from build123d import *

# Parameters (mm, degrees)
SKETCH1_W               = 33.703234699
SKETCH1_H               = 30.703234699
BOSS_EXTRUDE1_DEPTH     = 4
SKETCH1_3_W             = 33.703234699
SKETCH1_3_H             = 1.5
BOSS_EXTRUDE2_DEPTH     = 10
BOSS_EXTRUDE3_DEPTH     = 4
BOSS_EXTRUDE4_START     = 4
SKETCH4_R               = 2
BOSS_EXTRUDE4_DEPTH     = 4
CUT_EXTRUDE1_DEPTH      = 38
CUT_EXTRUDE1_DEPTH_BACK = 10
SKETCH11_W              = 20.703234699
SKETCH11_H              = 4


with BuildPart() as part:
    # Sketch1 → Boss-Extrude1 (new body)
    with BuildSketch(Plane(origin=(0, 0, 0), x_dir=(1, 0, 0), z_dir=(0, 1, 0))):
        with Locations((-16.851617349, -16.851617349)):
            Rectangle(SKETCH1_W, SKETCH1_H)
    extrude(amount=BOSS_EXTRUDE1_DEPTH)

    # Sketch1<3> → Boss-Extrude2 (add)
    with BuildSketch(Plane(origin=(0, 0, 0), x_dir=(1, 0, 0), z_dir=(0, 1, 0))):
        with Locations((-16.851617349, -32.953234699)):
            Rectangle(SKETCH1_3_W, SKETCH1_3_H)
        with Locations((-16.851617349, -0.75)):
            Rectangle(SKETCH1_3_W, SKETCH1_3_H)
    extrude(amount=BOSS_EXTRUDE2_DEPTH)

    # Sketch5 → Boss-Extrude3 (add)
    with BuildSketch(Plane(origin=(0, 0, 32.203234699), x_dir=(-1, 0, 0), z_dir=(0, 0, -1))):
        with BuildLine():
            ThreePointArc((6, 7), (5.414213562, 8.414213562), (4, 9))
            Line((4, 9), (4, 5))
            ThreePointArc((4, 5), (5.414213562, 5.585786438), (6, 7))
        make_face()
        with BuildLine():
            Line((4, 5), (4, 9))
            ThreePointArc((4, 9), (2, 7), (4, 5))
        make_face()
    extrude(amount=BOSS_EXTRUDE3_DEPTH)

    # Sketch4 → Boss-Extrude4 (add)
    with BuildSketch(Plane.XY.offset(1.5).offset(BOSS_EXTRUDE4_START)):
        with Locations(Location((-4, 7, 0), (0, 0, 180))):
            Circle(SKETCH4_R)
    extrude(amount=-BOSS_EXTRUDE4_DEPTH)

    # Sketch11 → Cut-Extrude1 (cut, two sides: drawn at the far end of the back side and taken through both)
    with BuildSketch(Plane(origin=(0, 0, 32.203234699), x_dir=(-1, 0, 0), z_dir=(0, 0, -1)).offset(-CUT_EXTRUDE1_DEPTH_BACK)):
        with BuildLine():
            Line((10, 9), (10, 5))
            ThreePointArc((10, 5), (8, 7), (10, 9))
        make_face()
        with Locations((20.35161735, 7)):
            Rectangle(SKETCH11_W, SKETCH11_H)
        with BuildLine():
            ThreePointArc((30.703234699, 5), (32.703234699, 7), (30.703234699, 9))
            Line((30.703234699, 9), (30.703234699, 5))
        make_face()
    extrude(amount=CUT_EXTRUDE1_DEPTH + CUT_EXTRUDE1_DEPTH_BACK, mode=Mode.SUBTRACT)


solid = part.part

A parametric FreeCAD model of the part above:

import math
import FreeCAD as App
import Part
import Sketcher

V = App.Vector

doc = App.newDocument("Part")
body = doc.addObject("PartDesign::Body", "Body")

# Sketch on XZ plane
sketch1 = doc.addObject("Sketcher::SketchObject", "Sketch")
body.addObject(sketch1)
sketch1.AttachmentSupport = (doc.XZ_Plane, [""])
sketch1.MapMode = "FlatFace"
sketch1.addGeometry(Part.LineSegment(V(-34, 2, 0), V(-34, 32, 0)), False)
sketch1.addGeometry(Part.LineSegment(V(-34, 32, 0), V(0, 32, 0)), False)
sketch1.addGeometry(Part.LineSegment(V(0, 32, 0), V(0, 2, 0)), False)
sketch1.addGeometry(Part.LineSegment(V(0, 2, 0), V(-34, 2, 0)), False)
sketch1.addConstraint(Sketcher.Constraint("Coincident", 0, 2, 1, 1))
sketch1.addConstraint(Sketcher.Constraint("Coincident", 1, 2, 2, 1))
sketch1.addConstraint(Sketcher.Constraint("Coincident", 2, 2, 3, 1))
sketch1.addConstraint(Sketcher.Constraint("Coincident", 3, 2, 0, 1))
sketch1.addConstraint(Sketcher.Constraint("Vertical", 0))
sketch1.addConstraint(Sketcher.Constraint("Horizontal", 1))
sketch1.addConstraint(Sketcher.Constraint("Vertical", 2))
sketch1.addConstraint(Sketcher.Constraint("Horizontal", 3))
sketch1.addConstraint(Sketcher.Constraint("PointOnObject", 1, 2, -2))
sketch1.addConstraint(Sketcher.Constraint("DistanceY", -1, 1, 2, 2, 1.5))
sketch1.addConstraint(Sketcher.Constraint("DistanceX", 1, 1, 1, 2, 33.703235))
sketch1.addConstraint(Sketcher.Constraint("DistanceY", 0, 1, 0, 2, 30.703235))
pad1 = doc.addObject("PartDesign::Pad", "Pad")
body.addObject(pad1)
pad1.Profile = sketch1
pad1.Length = 4
pad1.Reversed = True

# Sketch on XZ plane
sketch2 = doc.addObject("Sketcher::SketchObject", "Sketch001")
body.addObject(sketch2)
sketch2.AttachmentSupport = (doc.XZ_Plane, [""])
sketch2.MapMode = "FlatFace"
sketch2.addGeometry(Part.LineSegment(V(-33.7, 32.2, 0), V(-33.7, 33.7, 0)), False)
sketch2.addGeometry(Part.LineSegment(V(-33.7, 33.7, 0), V(0, 33.7, 0)), False)
sketch2.addGeometry(Part.LineSegment(V(0, 33.7, 0), V(0, 32.2, 0)), False)
sketch2.addGeometry(Part.LineSegment(V(0, 32.2, 0), V(-33.7, 32.2, 0)), False)
sketch2.addGeometry(Part.LineSegment(V(-33.7, 0, 0), V(-33.7, 1.5, 0)), False)
sketch2.addGeometry(Part.LineSegment(V(-33.7, 1.5, 0), V(0, 1.5, 0)), False)
sketch2.addGeometry(Part.LineSegment(V(0, 1.5, 0), V(0, 0, 0)), False)
sketch2.addGeometry(Part.LineSegment(V(0, 0, 0), V(-33.7, 0, 0)), False)
sketch2.addConstraint(Sketcher.Constraint("Coincident", 0, 2, 1, 1))
sketch2.addConstraint(Sketcher.Constraint("Coincident", 1, 2, 2, 1))
sketch2.addConstraint(Sketcher.Constraint("Coincident", 2, 2, 3, 1))
sketch2.addConstraint(Sketcher.Constraint("Coincident", 3, 2, 0, 1))
sketch2.addConstraint(Sketcher.Constraint("Coincident", 4, 2, 5, 1))
sketch2.addConstraint(Sketcher.Constraint("Coincident", 5, 2, 6, 1))
sketch2.addConstraint(Sketcher.Constraint("Coincident", 6, 2, 7, 1))
sketch2.addConstraint(Sketcher.Constraint("Coincident", 7, 2, 4, 1))
sketch2.addConstraint(Sketcher.Constraint("Vertical", 0))
sketch2.addConstraint(Sketcher.Constraint("Horizontal", 1))
sketch2.addConstraint(Sketcher.Constraint("Vertical", 2))
sketch2.addConstraint(Sketcher.Constraint("Horizontal", 3))
sketch2.addConstraint(Sketcher.Constraint("Vertical", 4))
sketch2.addConstraint(Sketcher.Constraint("Horizontal", 5))
sketch2.addConstraint(Sketcher.Constraint("Vertical", 6))
sketch2.addConstraint(Sketcher.Constraint("Horizontal", 7))
sketch2.addConstraint(Sketcher.Constraint("Coincident", 6, 2, -1, 1))
sketch2.addConstraint(Sketcher.Constraint("PointOnObject", 1, 2, -2))
sketch2.addConstraint(Sketcher.Constraint("Vertical", 3, 2, 4, 2))
sketch2.addConstraint(Sketcher.Constraint("Equal", 2, 4))
sketch2.addConstraint(Sketcher.Constraint("DistanceY", 0, 1, 0, 2, 1.5))
sketch2.addConstraint(Sketcher.Constraint("DistanceX", 1, 1, 1, 2, 33.703235))
sketch2.addConstraint(Sketcher.Constraint("DistanceY", -1, 1, 0, 2, 33.703235))
pad2 = doc.addObject("PartDesign::Pad", "Pad001")
body.addObject(pad2)
pad2.Profile = sketch2
pad2.Length = 10
pad2.Reversed = True

# Sketch on XY plane
sketch3 = doc.addObject("Sketcher::SketchObject", "Sketch002")
body.addObject(sketch3)
sketch3.AttachmentSupport = (doc.XY_Plane, [""])
sketch3.MapMode = "FlatFace"
sketch3.AttachmentOffset = App.Placement(V(0, 0, 32.203235), App.Rotation())
sketch3.addGeometry(Part.ArcOfCircle(Part.Circle(V(-4, 7, 0), V(0, 0, 1), 2), math.radians(90), math.radians(180)), False)
sketch3.addGeometry(Part.ArcOfCircle(Part.Circle(V(-4, 7, 0), V(0, 0, 1), 2), math.radians(-90), math.radians(90)), False)
sketch3.addGeometry(Part.ArcOfCircle(Part.Circle(V(-4, 7, 0), V(0, 0, 1), 2), math.radians(-180), math.radians(-90)), False)
sketch3.addConstraint(Sketcher.Constraint("Tangent", 0, 1, 1, 2))
sketch3.addConstraint(Sketcher.Constraint("Tangent", 1, 1, 2, 2))
sketch3.addConstraint(Sketcher.Constraint("Tangent", 2, 1, 0, 2))
sketch3.addConstraint(Sketcher.Constraint("Horizontal", 1, 3, 2, 1))
sketch3.addConstraint(Sketcher.Constraint("Vertical", 2, 3, 0, 1))
sketch3.addConstraint(Sketcher.Constraint("Vertical", 0, 1, 1, 1))
sketch3.addConstraint(Sketcher.Constraint("Radius", 0, 2.0))
sketch3.addConstraint(Sketcher.Constraint("DistanceX", 0, 3, -1, 1, 4.0))
sketch3.addConstraint(Sketcher.Constraint("DistanceY", -1, 1, 0, 3, 7.0))
pad3 = doc.addObject("PartDesign::Pad", "Pad002")
body.addObject(pad3)
pad3.Profile = sketch3
pad3.Length = 4
pad3.Reversed = True

# Sketch on XY plane
sketch4 = doc.addObject("Sketcher::SketchObject", "Sketch003")
body.addObject(sketch4)
sketch4.AttachmentSupport = (doc.XY_Plane, [""])
sketch4.MapMode = "FlatFace"
sketch4.AttachmentOffset = App.Placement(V(0, 0, 5.5), App.Rotation())
sketch4.addGeometry(Part.Circle(V(-4, 7, 0), V(0, 0, 1), 2), False)
sketch4.addConstraint(Sketcher.Constraint("Diameter", 0, 4.0))
sketch4.addConstraint(Sketcher.Constraint("DistanceX", 0, 3, -1, 1, 4.0))
sketch4.addConstraint(Sketcher.Constraint("DistanceY", -1, 1, 0, 3, 7.0))
pad4 = doc.addObject("PartDesign::Pad", "Pad003")
body.addObject(pad4)
pad4.Profile = sketch4
pad4.Length = 4
pad4.Reversed = True

# Sketch on XY plane
sketch5 = doc.addObject("Sketcher::SketchObject", "Sketch004")
body.addObject(sketch5)
sketch5.AttachmentSupport = (doc.XY_Plane, [""])
sketch5.MapMode = "FlatFace"
sketch5.AttachmentOffset = App.Placement(V(0, 0, 32.203235), App.Rotation())
sketch5.addGeometry(Part.ArcOfCircle(Part.Circle(V(-10, 7, 0), V(0, 0, 1), 2), math.radians(-90), math.radians(90)), False)
sketch5.addGeometry(Part.LineSegment(V(-10, 5, 0), V(-30.7, 5, 0)), False)
sketch5.addGeometry(Part.ArcOfCircle(Part.Circle(V(-30.7, 7, 0), V(0, 0, 1), 2), math.radians(90), math.radians(270)), False)
sketch5.addGeometry(Part.LineSegment(V(-30.7, 9, 0), V(-10, 9, 0)), False)
sketch5.addConstraint(Sketcher.Constraint("Tangent", 0, 1, 1, 1))
sketch5.addConstraint(Sketcher.Constraint("Tangent", 1, 2, 2, 2))
sketch5.addConstraint(Sketcher.Constraint("Tangent", 2, 1, 3, 1))
sketch5.addConstraint(Sketcher.Constraint("Tangent", 3, 2, 0, 2))
sketch5.addConstraint(Sketcher.Constraint("Horizontal", 1))
sketch5.addConstraint(Sketcher.Constraint("Horizontal", 3))
sketch5.addConstraint(Sketcher.Constraint("Radius", 0, 2.0))
sketch5.addConstraint(Sketcher.Constraint("DistanceX", 0, 3, -1, 1, 10.0))
sketch5.addConstraint(Sketcher.Constraint("DistanceY", -1, 1, 0, 3, 7.0))
sketch5.addConstraint(Sketcher.Constraint("DistanceX", 1, 2, 1, 1, 20.703235))
pocket1 = doc.addObject("PartDesign::Pocket", "Pocket")
body.addObject(pocket1)
pocket1.Profile = sketch5
pocket1.Type = "ThroughAll"
pocket1.Midplane = True

doc.recompute()
